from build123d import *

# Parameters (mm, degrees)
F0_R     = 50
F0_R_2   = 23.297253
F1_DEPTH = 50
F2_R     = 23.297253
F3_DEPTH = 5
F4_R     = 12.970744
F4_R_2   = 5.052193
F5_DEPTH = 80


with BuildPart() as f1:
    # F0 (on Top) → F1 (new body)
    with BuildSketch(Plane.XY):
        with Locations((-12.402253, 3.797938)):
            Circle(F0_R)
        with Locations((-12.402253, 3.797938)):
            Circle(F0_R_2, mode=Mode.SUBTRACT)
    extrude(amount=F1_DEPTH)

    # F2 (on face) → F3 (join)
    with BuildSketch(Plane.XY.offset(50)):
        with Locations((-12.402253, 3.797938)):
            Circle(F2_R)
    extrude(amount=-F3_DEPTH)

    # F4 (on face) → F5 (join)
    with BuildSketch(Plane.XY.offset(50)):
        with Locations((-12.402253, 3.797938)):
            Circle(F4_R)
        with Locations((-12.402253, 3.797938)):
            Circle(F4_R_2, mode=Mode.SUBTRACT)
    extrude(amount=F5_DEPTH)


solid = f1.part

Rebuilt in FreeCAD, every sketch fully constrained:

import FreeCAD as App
import Part
import Sketcher
from FreeCAD import Vector
Q = App.Units.Quantity

doc = App.newDocument("Part")
body = doc.addObject("PartDesign::Body", "Body")

# Sketch on XY plane
sketch1 = doc.addObject("Sketcher::SketchObject", "Sketch")
body.addObject(sketch1)
sketch1.AttachmentSupport = (doc.XY_Plane, [""])
sketch1.MapMode = "FlatFace"
sketch1.addGeometry([
    Part.Circle(Vector(-12, 4, 0), Vector(0, 0, 1), 50),
    Part.Circle(Vector(-12, 4, 0), Vector(0, 0, 1), 23),
], False)
sketch1.addConstraint([
    Sketcher.Constraint("Coincident", 1, 3, 0, 3),
    Sketcher.Constraint("Diameter", 0, Q("100 mm")),
    Sketcher.Constraint("Diameter", 1, Q("46.594506 mm")),
    Sketcher.Constraint("DistanceX", 0, 3, -1, 1, Q("12.402253 mm")),
    Sketcher.Constraint("DistanceY", -1, 1, 0, 3, Q("3.797938 mm")),
])
pad1 = doc.addObject("PartDesign::Pad", "Pad")
body.addObject(pad1)
pad1.Profile = sketch1
pad1.Length = 50

# Sketch on XY plane
sketch2 = doc.addObject("Sketcher::SketchObject", "Sketch001")
body.addObject(sketch2)
sketch2.AttachmentSupport = (doc.XY_Plane, [""])
sketch2.MapMode = "FlatFace"
sketch2.AttachmentOffset = App.Placement(Vector(0, 0, 50), App.Rotation())
sketch2.addGeometry(Part.Circle(Vector(-12, 4, 0), Vector(0, 0, 1), 23), False)
sketch2.addConstraint([
    Sketcher.Constraint("Diameter", 0, Q("46.594506 mm")),
    Sketcher.Constraint("DistanceX", 0, 3, -1, 1, Q("12.402253 mm")),
    Sketcher.Constraint("DistanceY", -1, 1, 0, 3, Q("3.797938 mm")),
])
pad2 = doc.addObject("PartDesign::Pad", "Pad001")
body.addObject(pad2)
pad2.Profile = sketch2
pad2.Length = 5
pad2.Reversed = True

# Sketch on XY plane
sketch3 = doc.addObject("Sketcher::SketchObject", "Sketch002")
body.addObject(sketch3)
sketch3.AttachmentSupport = (doc.XY_Plane, [""])
sketch3.MapMode = "FlatFace"
sketch3.AttachmentOffset = App.Placement(Vector(0, 0, 50), App.Rotation())
sketch3.addGeometry([
    Part.Circle(Vector(-12, 4, 0), Vector(0, 0, 1), 13),
    Part.Circle(Vector(-12, 4, 0), Vector(0, 0, 1), 5),
], False)
sketch3.addConstraint([
    Sketcher.Constraint("Coincident", 1, 3, 0, 3),
    Sketcher.Constraint("Diameter", 0, Q("25.941488 mm")),
    Sketcher.Constraint("Diameter", 1, Q("10.104386 mm")),
    Sketcher.Constraint("DistanceX", 0, 3, -1, 1, Q("12.402253 mm")),
    Sketcher.Constraint("DistanceY", -1, 1, 0, 3, Q("3.797938 mm")),
])
pad3 = doc.addObject("PartDesign::Pad", "Pad002")
body.addObject(pad3)
pad3.Profile = sketch3
pad3.Length = 80

doc.recompute()
